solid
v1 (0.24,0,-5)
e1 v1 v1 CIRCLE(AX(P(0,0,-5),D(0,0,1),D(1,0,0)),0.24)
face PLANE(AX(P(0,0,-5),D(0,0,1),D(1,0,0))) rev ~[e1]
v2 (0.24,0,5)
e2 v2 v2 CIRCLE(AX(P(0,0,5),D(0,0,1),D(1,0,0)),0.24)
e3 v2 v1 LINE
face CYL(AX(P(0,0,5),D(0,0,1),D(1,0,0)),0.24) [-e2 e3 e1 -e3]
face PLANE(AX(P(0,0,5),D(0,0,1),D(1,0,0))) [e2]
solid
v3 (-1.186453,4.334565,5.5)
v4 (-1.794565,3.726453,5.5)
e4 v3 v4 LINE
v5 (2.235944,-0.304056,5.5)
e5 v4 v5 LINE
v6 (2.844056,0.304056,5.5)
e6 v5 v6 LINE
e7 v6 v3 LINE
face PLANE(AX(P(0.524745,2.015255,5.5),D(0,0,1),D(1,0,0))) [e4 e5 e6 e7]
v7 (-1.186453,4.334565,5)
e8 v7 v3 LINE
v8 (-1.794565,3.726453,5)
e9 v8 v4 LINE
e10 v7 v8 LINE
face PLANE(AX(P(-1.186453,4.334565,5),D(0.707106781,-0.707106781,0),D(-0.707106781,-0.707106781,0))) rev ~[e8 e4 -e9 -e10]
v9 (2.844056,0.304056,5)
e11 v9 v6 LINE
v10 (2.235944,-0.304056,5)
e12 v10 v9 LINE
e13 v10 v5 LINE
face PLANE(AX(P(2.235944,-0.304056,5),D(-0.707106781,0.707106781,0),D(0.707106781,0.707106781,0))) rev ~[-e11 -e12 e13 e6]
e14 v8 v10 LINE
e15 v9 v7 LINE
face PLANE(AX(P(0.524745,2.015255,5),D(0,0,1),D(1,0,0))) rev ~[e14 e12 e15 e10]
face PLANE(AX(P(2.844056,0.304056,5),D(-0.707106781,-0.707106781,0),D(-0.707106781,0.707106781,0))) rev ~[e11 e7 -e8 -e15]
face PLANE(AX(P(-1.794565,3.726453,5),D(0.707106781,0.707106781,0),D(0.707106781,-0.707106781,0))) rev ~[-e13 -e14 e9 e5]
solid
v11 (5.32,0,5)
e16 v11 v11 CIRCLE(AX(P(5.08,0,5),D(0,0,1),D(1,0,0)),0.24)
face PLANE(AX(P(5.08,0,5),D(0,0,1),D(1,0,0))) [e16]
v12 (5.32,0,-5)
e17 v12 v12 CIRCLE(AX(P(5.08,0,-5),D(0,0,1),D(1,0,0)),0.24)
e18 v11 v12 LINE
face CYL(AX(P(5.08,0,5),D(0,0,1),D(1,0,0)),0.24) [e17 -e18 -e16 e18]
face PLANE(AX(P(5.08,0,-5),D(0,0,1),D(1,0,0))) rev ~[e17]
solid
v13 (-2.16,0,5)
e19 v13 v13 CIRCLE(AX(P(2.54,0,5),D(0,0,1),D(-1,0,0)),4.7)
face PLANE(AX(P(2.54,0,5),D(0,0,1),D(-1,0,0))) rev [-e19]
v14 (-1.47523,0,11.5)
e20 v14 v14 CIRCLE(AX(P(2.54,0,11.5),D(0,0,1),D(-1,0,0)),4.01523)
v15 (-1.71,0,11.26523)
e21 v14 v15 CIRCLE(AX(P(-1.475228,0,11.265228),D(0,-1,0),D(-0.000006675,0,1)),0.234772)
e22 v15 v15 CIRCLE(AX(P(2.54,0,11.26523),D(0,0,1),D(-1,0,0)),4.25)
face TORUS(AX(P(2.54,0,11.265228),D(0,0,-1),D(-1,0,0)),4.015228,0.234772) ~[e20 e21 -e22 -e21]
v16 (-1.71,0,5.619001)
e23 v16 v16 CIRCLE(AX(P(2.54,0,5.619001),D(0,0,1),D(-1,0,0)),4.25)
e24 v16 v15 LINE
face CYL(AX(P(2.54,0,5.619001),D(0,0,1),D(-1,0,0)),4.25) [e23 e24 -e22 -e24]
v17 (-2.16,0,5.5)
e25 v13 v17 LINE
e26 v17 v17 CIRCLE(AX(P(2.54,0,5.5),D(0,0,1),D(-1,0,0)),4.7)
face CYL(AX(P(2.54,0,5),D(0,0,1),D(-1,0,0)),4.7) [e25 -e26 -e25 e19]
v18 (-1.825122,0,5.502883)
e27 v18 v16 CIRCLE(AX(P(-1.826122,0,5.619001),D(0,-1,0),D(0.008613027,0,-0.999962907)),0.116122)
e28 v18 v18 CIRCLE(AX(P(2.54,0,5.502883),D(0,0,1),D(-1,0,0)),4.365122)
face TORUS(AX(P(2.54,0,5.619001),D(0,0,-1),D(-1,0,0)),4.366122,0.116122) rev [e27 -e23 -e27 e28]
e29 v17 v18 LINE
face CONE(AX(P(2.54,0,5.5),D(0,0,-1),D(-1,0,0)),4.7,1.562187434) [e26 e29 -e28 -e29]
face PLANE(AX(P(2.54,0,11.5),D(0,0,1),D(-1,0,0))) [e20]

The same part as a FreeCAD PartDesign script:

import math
import FreeCAD as App
import Part
import Sketcher
Q = App.Units.Quantity

doc = App.newDocument("Part")
body = doc.addObject("PartDesign::Body", "Body")
body.AllowCompound = True

# Sketch on XY plane
sketch1 = body.newObject("Sketcher::SketchObject", "Sketch")
sketch1.AttachmentSupport = (doc.getObject("XY_Plane"), [""])
sketch1.MapMode = "FlatFace"
sketch1.AttachmentOffset = App.Placement(App.Vector(0, 0, 5), App.Rotation())
sketch1.addGeometry(Part.Circle(App.Vector(0, 0, 0), App.Vector(0, 0, 1), 0.24), False)
sketch1.addGeometry(Part.Circle(App.Vector(5.08, 0, 0), App.Vector(0, 0, 1), 0.24), False)
sketch1.addConstraint(Sketcher.Constraint("Coincident", 0, 3, -1, 1))
sketch1.addConstraint(Sketcher.Constraint("Equal", 0, 1))
sketch1.addConstraint(Sketcher.Constraint("PointOnObject", 1, 3, -1))
sketch1.addConstraint(Sketcher.Constraint("Diameter", 0, Q("0.48 mm")))
sketch1.addConstraint(Sketcher.Constraint("DistanceX", -1, 1, 1, 3, Q("5.08 mm")))
pad1 = body.newObject("PartDesign::Pad", "Pad")
pad1.Profile = sketch1
pad1.Length = 10
pad1.Reversed = True
body2 = doc.addObject("PartDesign::Body", "Body001")

# Sketch on XZ plane
sketch2 = body2.newObject("Sketcher::SketchObject", "Sketch001")
sketch2.AttachmentSupport = (doc.getObject("XZ_Plane001"), [""])
sketch2.MapMode = "FlatFace"
sketch2.addGeometry(Part.LineSegment(App.Vector(-2.16, 5, 0), App.Vector(2.54, 5, 0)), False)
sketch2.addGeometry(Part.LineSegment(App.Vector(2.54, 5, 0), App.Vector(2.54, 11.5, 0)), False)
sketch2.addGeometry(Part.LineSegment(App.Vector(2.54, 11.5, 0), App.Vector(-1.48, 11.5, 0)), False)
sketch2.addGeometry(Part.ArcOfCircle(Part.Circle(App.Vector(-1.48, 11.27, 0), App.Vector(0, 0, 1), 0.23), math.radians(90), math.radians(180)), False)
sketch2.addGeometry(Part.LineSegment(App.Vector(-1.71, 11.27, 0), App.Vector(-1.71, 5.62, 0)), False)
sketch2.addGeometry(Part.ArcOfCircle(Part.Circle(App.Vector(-1.83, 5.62, 0), App.Vector(0, 0, 1), 0.12), math.radians(-90), math.radians(0)), False)
sketch2.addGeometry(Part.LineSegment(App.Vector(-1.83, 5.5, 0), App.Vector(-2.16, 5.5, 0)), False)
sketch2.addGeometry(Part.LineSegment(App.Vector(-2.16, 5.5, 0), App.Vector(-2.16, 5, 0)), False)
sketch2.addGeometry(Part.LineSegment(App.Vector(2.54, 5, 0), App.Vector(2.54, 11.5, 0)), True)  # axis
sketch2.addConstraint(Sketcher.Constraint("Coincident", 0, 2, 1, 1))
sketch2.addConstraint(Sketcher.Constraint("Coincident", 1, 2, 2, 1))
sketch2.addConstraint(Sketcher.Constraint("Coincident", 2, 2, 3, 1))
sketch2.addConstraint(Sketcher.Constraint("Coincident", 3, 2, 4, 1))
sketch2.addConstraint(Sketcher.Constraint("Tangent", 4, 2, 5, 2))
sketch2.addConstraint(Sketcher.Constraint("Coincident", 5, 1, 6, 1))
sketch2.addConstraint(Sketcher.Constraint("Coincident", 6, 2, 7, 1))
sketch2.addConstraint(Sketcher.Constraint("Coincident", 7, 2, 0, 1))
sketch2.addConstraint(Sketcher.Constraint("Horizontal", 0))
sketch2.addConstraint(Sketcher.Constraint("Vertical", 1))
sketch2.addConstraint(Sketcher.Constraint("Horizontal", 2))
sketch2.addConstraint(Sketcher.Constraint("Vertical", 4))
sketch2.addConstraint(Sketcher.Constraint("Vertical", 7))
sketch2.addConstraint(Sketcher.Constraint("Vertical", 8))
sketch2.addConstraint(Sketcher.Constraint("Coincident", 8, 1, 0, 2))
sketch2.addConstraint(Sketcher.Constraint("Horizontal", 2, 2, 8, 2))
sketch2.addConstraint(Sketcher.Constraint("Vertical", 3, 3, 2, 2))
sketch2.addConstraint(Sketcher.Constraint("DistanceX", 0, 1, 0, 2, Q("4.7 mm")))
sketch2.addConstraint(Sketcher.Constraint("DistanceY", 1, 1, 1, 2, Q("6.5 mm")))
sketch2.addConstraint(Sketcher.Constraint("DistanceY", 7, 2, 7, 1, Q("0.5 mm")))
sketch2.addConstraint(Sketcher.Constraint("DistanceY", -1, 1, 0, 2, Q("5 mm")))
sketch2.addConstraint(Sketcher.Constraint("DistanceX", -1, 1, 0, 2, Q("2.54 mm")))
sketch2.addConstraint(Sketcher.Constraint("DistanceX", 3, 2, -1, 1, Q("1.71 mm")))
sketch2.addConstraint(Sketcher.Constraint("Radius", 3, Q("0.234772 mm")))
sketch2.addConstraint(Sketcher.Constraint("DistanceY", -1, 1, 5, 3, Q("5.619001 mm")))
sketch2.addConstraint(Sketcher.Constraint("Radius", 5, Q("0.116122 mm")))
sketch2.addConstraint(Sketcher.Constraint("DistanceX", 5, 3, 5, 1, Q("0.001 mm")))
sketch2.addConstraint(Sketcher.Constraint("DistanceY", 4, 2, 4, 1, Q("5.646229 mm")))
revolution = body2.newObject("PartDesign::Revolution", "Revolution")
revolution.Profile = sketch2
revolution.ReferenceAxis = (sketch2, ["Axis0"])
revolution.Angle = 360
body3 = doc.addObject("PartDesign::Body", "Body002")

# Sketch on XY plane
sketch3 = body3.newObject("Sketcher::SketchObject", "Sketch002")
sketch3.AttachmentSupport = (doc.getObject("XY_Plane002"), [""])
sketch3.MapMode = "FlatFace"
sketch3.AttachmentOffset = App.Placement(App.Vector(0, 0, 5), App.Rotation())
sketch3.addGeometry(Part.LineSegment(App.Vector(2.8, 0.3, 0), App.Vector(-1.2, 4.3, 0)), False)
sketch3.addGeometry(Part.LineSegment(App.Vector(-1.2, 4.3, 0), App.Vector(-1.8, 3.7, 0)), False)
sketch3.addGeometry(Part.LineSegment(App.Vector(-1.8, 3.7, 0), App.Vector(2.2, -0.3, 0)), False)
sketch3.addGeometry(Part.LineSegment(App.Vector(2.2, -0.3, 0), App.Vector(2.8, 0.3, 0)), False)
sketch3.addConstraint(Sketcher.Constraint("Coincident", 0, 2, 1, 1))
sketch3.addConstraint(Sketcher.Constraint("Coincident", 1, 2, 2, 1))
sketch3.addConstraint(Sketcher.Constraint("Coincident", 2, 2, 3, 1))
sketch3.addConstraint(Sketcher.Constraint("Coincident", 3, 2, 0, 1))
sketch3.addConstraint(Sketcher.Constraint("Perpendicular", 0, 1))
sketch3.addConstraint(Sketcher.Constraint("Perpendicular", 1, 2))
sketch3.addConstraint(Sketcher.Constraint("Perpendicular", 2, 3))
sketch3.addConstraint(Sketcher.Constraint("Angle", 0, Q("135 deg")))
sketch3.addConstraint(Sketcher.Constraint("Distance", 0, Q("5.7 mm")))
sketch3.addConstraint(Sketcher.Constraint("Distance", 1, Q("0.86 mm")))
sketch3.addConstraint(Sketcher.Constraint("DistanceX", 0, 2, -1, 1, Q("1.186453 mm")))
sketch3.addConstraint(Sketcher.Constraint("DistanceY", -1, 1, 0, 2, Q("4.334565 mm")))
pad2 = body3.newObject("PartDesign::Pad", "Pad001")
pad2.Profile = sketch3
pad2.Length = 0.5

doc.recompute()
